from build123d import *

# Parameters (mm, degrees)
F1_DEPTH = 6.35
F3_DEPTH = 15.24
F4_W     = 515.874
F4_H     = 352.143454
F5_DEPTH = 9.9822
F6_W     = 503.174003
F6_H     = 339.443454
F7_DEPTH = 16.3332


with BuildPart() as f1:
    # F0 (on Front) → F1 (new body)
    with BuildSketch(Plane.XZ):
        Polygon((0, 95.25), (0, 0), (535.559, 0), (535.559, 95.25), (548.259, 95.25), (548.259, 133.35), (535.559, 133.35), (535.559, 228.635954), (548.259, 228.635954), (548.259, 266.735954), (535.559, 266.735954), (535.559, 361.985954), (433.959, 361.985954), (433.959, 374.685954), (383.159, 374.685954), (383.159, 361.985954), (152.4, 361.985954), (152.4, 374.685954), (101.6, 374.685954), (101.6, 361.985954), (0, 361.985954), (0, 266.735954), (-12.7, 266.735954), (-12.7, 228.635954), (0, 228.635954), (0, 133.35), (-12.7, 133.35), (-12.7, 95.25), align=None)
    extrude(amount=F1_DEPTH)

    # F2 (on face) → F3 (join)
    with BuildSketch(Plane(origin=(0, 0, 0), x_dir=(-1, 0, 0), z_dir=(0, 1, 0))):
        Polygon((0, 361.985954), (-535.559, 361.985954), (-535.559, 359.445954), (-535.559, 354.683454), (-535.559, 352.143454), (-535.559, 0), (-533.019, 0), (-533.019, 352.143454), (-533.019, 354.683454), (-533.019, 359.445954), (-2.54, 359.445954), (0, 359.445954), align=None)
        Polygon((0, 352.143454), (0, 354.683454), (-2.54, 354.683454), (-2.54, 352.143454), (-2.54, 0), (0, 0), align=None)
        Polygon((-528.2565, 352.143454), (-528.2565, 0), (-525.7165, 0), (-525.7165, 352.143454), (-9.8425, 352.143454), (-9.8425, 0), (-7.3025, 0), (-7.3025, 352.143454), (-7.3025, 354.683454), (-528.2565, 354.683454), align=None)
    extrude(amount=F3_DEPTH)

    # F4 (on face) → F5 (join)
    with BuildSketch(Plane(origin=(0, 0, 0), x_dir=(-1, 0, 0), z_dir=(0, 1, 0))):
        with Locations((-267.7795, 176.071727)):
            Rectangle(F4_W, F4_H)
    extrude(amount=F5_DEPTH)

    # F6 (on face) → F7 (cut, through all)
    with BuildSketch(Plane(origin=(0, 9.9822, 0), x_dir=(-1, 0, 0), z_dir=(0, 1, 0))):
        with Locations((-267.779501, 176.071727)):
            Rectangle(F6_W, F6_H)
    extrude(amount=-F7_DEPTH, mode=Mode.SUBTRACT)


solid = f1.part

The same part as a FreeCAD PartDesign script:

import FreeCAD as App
import Part
import Sketcher
Q = App.Units.Quantity


def add_polygon(sketch, points):
    """Adds a closed chain of lines whose ends are joined by coincident constraints."""
    first, n = sketch.GeometryCount, len(points)
    for a, b in zip(points, points[1:] + points[:1]):
        sketch.addGeometry(Part.LineSegment(App.Vector(*a, 0), App.Vector(*b, 0)), False)
    for i in range(n):
        sketch.addConstraint(Sketcher.Constraint("Coincident", first + i, 2, first + (i + 1) % n, 1))

doc = App.newDocument("Part")
params = doc.addObject("Spreadsheet::Sheet", "Params")
for row, (alias, value) in enumerate([
    ("sketch1_width", "4 in"),
    ("sketch1_width2", "2 in"),
    ("sketch1_width3", "0.5 in"),
    ("sketch1_height", "1.5 in"),
    ("sketch1_height2", "3.75 in"),
    ("pad1_length", "0.25 in"),
    ("sketch2_width", "0.1 in"),
    ("sketch2_width2", "20.31 in"),
    ("sketch2_width3", "21.085 in"),
    ("pad2_length", "0.6 in"),
    ("sketch3_width", "20.31 in"),
    ("pad3_length", "0.393 in"),
    ("sketch4_width", "19.8100001 in"),
], start=1):
    params.set(f"A{row}", alias)
    params.set(f"B{row}", "=" + value)
    params.setAlias(f"B{row}", alias)

body = doc.addObject("PartDesign::Body", "Body")

sketch1 = body.newObject("Sketcher::SketchObject", "Sketch")
sketch1.AttachmentSupport = (doc.getObject("XZ_Plane"), [""])
sketch1.MapMode = "FlatFace"
add_polygon(sketch1, [(0, 95.25), (0, 0), (535.559, 0), (535.559, 95.25), (548.259, 95.25), (548.259, 133.35), (535.559, 133.35), (535.559, 228.635954), (548.259, 228.635954), (548.259, 266.735954), (535.559, 266.735954), (535.559, 361.985954), (433.959, 361.985954), (433.959, 374.685954), (383.159, 374.685954), (383.159, 361.985954), (152.4, 361.985954), (152.4, 374.685954), (101.6, 374.685954), (101.6, 361.985954), (0, 361.985954), (0, 266.735954), (-12.7, 266.735954), (-12.7, 228.635954), (0, 228.635954), (0, 133.35), (-12.7, 133.35), (-12.7, 95.25)])
sketch1.addConstraint([
    Sketcher.Constraint("Vertical", 0),
    Sketcher.Constraint("Horizontal", 1),
    Sketcher.Constraint("Vertical", 2),
    Sketcher.Constraint("Horizontal", 3),
    Sketcher.Constraint("Vertical", 4),
    Sketcher.Constraint("Horizontal", 5),
    Sketcher.Constraint("Vertical", 6),
    Sketcher.Constraint("Horizontal", 7),
    Sketcher.Constraint("Vertical", 8),
    Sketcher.Constraint("Horizontal", 9),
    Sketcher.Constraint("Vertical", 10),
    Sketcher.Constraint("Horizontal", 11),
    Sketcher.Constraint("Vertical", 12),
    Sketcher.Constraint("Horizontal", 13),
    Sketcher.Constraint("Vertical", 14),
    Sketcher.Constraint("Horizontal", 15),
    Sketcher.Constraint("Vertical", 16),
    Sketcher.Constraint("Horizontal", 17),
    Sketcher.Constraint("Vertical", 18),
    Sketcher.Constraint("Horizontal", 19),
    Sketcher.Constraint("Vertical", 20),
    Sketcher.Constraint("Horizontal", 21),
    Sketcher.Constraint("Vertical", 22),
    Sketcher.Constraint("Horizontal", 23),
    Sketcher.Constraint("Vertical", 24),
    Sketcher.Constraint("Horizontal", 25),
    Sketcher.Constraint("Vertical", 26),
    Sketcher.Constraint("Horizontal", 27),
    Sketcher.Constraint("Coincident", 0, 2, -1, 1),
    Sketcher.Constraint("PointOnObject", 19, 2, -2),
    Sketcher.Constraint("PointOnObject", 23, 2, -2),
    Sketcher.Constraint("Horizontal", 11, 2, 14, 2),
    Sketcher.Constraint("Horizontal", 13, 2, 16, 2),
    Sketcher.Constraint("Horizontal", 15, 2, 18, 2),
    Sketcher.Constraint("Horizontal", 9, 2, 20, 2),
    Sketcher.Constraint("Horizontal", 7, 2, 22, 2),
    Sketcher.Constraint("Horizontal", 5, 2, 24, 2),
    Sketcher.Constraint("Horizontal", 3, 2, 26, 2),
    Sketcher.Constraint("Vertical", 2, 2, 5, 2),
    Sketcher.Constraint("Vertical", 4, 2, 7, 2),
    Sketcher.Constraint("Vertical", 6, 2, 9, 2),
    Sketcher.Constraint("Vertical", 22, 2, 25, 2),
    Sketcher.Constraint("Equal", 13, 17),
    Sketcher.Constraint("Equal", 11, 19),
    Sketcher.Constraint("Equal", 9, 21),
    Sketcher.Constraint("Equal", 4, 8),
    Sketcher.Constraint("Equal", 2, 10),
    Sketcher.Constraint("Equal", 27, 12),
    Sketcher.Constraint("DistanceX", 11, 2, 11, 1, Q("4 in")),
    Sketcher.Constraint("DistanceX", 13, 2, 13, 1, Q("2 in")),
    Sketcher.Constraint("DistanceX", 3, 1, 3, 2, Q("0.5 in")),
    Sketcher.Constraint("DistanceY", 4, 1, 4, 2, Q("1.5 in")),
    Sketcher.Constraint("DistanceY", 0, 2, 0, 1, Q("3.75 in")),
    Sketcher.Constraint("DistanceX", 1, 1, 1, 2, Q("21.085 in")),
    Sketcher.Constraint("DistanceY", 6, 1, 6, 2, Q("95.285954 mm")),
])
sketch1.setExpression("Constraints[76]", "Params.sketch1_width")
sketch1.setExpression("Constraints[77]", "Params.sketch1_width2")
sketch1.setExpression("Constraints[78]", "Params.sketch1_width3")
sketch1.setExpression("Constraints[79]", "Params.sketch1_height")
sketch1.setExpression("Constraints[80]", "Params.sketch1_height2")
pad1 = body.newObject("PartDesign::Pad", "Pad")
pad1.Profile = sketch1
pad1.setExpression("Length", "Params.pad1_length")

sketch2 = body.newObject("Sketcher::SketchObject", "Sketch001")
sketch2.AttachmentSupport = (doc.getObject("XZ_Plane"), [""])
sketch2.MapMode = "FlatFace"
add_polygon(sketch2, [(0, 361.985954), (535.559, 361.985954), (535.559, 0), (533.019, 0), (533.019, 359.445954), (0, 359.445954)])
add_polygon(sketch2, [(0, 354.683454), (2.54, 354.683454), (2.54, 0), (0, 0)])
add_polygon(sketch2, [(528.2565, 0), (525.7165, 0), (525.7165, 352.143454), (9.8425, 352.143454), (9.8425, 0), (7.3025, 0), (7.3025, 354.683454), (528.2565, 354.683454)])
sketch2.addConstraint([
    Sketcher.Constraint("Horizontal", 0),
    Sketcher.Constraint("Vertical", 1),
    Sketcher.Constraint("Horizontal", 2),
    Sketcher.Constraint("Vertical", 3),
    Sketcher.Constraint("Horizontal", 4),
    Sketcher.Constraint("Vertical", 5),
    Sketcher.Constraint("Horizontal", 6),
    Sketcher.Constraint("Vertical", 7),
    Sketcher.Constraint("Horizontal", 8),
    Sketcher.Constraint("Vertical", 9),
    Sketcher.Constraint("Horizontal", 10),
    Sketcher.Constraint("Vertical", 11),
    Sketcher.Constraint("Horizontal", 12),
    Sketcher.Constraint("Vertical", 13),
    Sketcher.Constraint("Horizontal", 14),
    Sketcher.Constraint("Vertical", 15),
    Sketcher.Constraint("Horizontal", 16),
    Sketcher.Constraint("Vertical", 17),
    Sketcher.Constraint("Coincident", 8, 2, -1, 1),
    Sketcher.Constraint("PointOnObject", 1, 2, -1),
    Sketcher.Constraint("PointOnObject", 4, 2, -2),
    Sketcher.Constraint("PointOnObject", 10, 2, -1),
    Sketcher.Constraint("PointOnObject", 13, 2, -1),
    Sketcher.Constraint("Horizontal", 9, 2, 15, 2),
    Sketcher.Constraint("Equal", 2, 6),
    Sketcher.Constraint("Equal", 8, 10),
    Sketcher.Constraint("Equal", 10, 14),
    Sketcher.Constraint("Equal", 14, 5),
    Sketcher.Constraint("DistanceX", 2, 2, 2, 1, Q("0.1 in")),
    Sketcher.Constraint("DistanceX", 12, 2, 12, 1, Q("20.31 in")),
    Sketcher.Constraint("DistanceY", 12, 2, 6, 2, Q("0.1 in")),
    Sketcher.Constraint("DistanceX", 0, 1, 0, 2, Q("21.085 in")),
    Sketcher.Constraint("DistanceY", 6, 2, 4, 2, Q("0.1875 in")),
    Sketcher.Constraint("DistanceX", 7, 2, 14, 2, Q("0.1875 in")),
    Sketcher.Constraint("DistanceY", 1, 2, 1, 1, Q("361.985954 mm")),
])
sketch2.setExpression("Constraints[46]", "Params.sketch2_width")
sketch2.setExpression("Constraints[47]", "Params.sketch2_width2")
sketch2.setExpression("Constraints[49]", "Params.sketch2_width3")
pad2 = body.newObject("PartDesign::Pad", "Pad001")
pad2.Profile = sketch2
pad2.setExpression("Length", "Params.pad2_length")
pad2.Reversed = True

sketch3 = body.newObject("Sketcher::SketchObject", "Sketch002")
sketch3.AttachmentSupport = (doc.getObject("XZ_Plane"), [""])
sketch3.MapMode = "FlatFace"
add_polygon(sketch3, [(525.7165, 352.143454), (525.7165, 0), (9.8425, 0), (9.8425, 352.143454)])
sketch3.addConstraint([
    Sketcher.Constraint("Vertical", 0),
    Sketcher.Constraint("Horizontal", 1),
    Sketcher.Constraint("Vertical", 2),
    Sketcher.Constraint("Horizontal", 3),
    Sketcher.Constraint("PointOnObject", 0, 2, -1),
    Sketcher.Constraint("DistanceX", 1, 2, 1, 1, Q("20.31 in")),
    Sketcher.Constraint("DistanceX", -1, 1, 0, 2, Q("20.6975 in")),
    Sketcher.Constraint("DistanceY", 0, 2, 0, 1, Q("352.143454 mm")),
])
sketch3.setExpression("Constraints[9]", "Params.sketch3_width")
pad3 = body.newObject("PartDesign::Pad", "Pad002")
pad3.Profile = sketch3
pad3.setExpression("Length", "Params.pad3_length")
pad3.Reversed = True

sketch4 = body.newObject("Sketcher::SketchObject", "Sketch003")
sketch4.AttachmentSupport = (doc.getObject("XZ_Plane"), [""])
sketch4.MapMode = "FlatFace"
sketch4.AttachmentOffset = App.Placement(App.Vector(0, 0, -0.393 * 25.4), App.Rotation())
add_polygon(sketch4, [(519.366503, 345.793454), (519.366503, 6.35), (16.1925, 6.35), (16.1925, 345.793454)])
sketch4.addConstraint([
    Sketcher.Constraint("Vertical", 0),
    Sketcher.Constraint("Horizontal", 1),
    Sketcher.Constraint("Vertical", 2),
    Sketcher.Constraint("Horizontal", 3),
    Sketcher.Constraint("DistanceX", 1, 2, 1, 1, Q("19.8100001 in")),
    Sketcher.Constraint("DistanceY", -1, 1, 0, 2, Q("0.25 in")),
    Sketcher.Constraint("DistanceX", -1, 1, 0, 2, Q("20.4475001 in")),
    Sketcher.Constraint("DistanceY", 0, 2, 0, 1, Q("339.443454 mm")),
])
sketch4.setExpression("Constraints[8]", "Params.sketch4_width")
pocket1 = body.newObject("PartDesign::Pocket", "Pocket")
pocket1.Profile = sketch4
pocket1.Type = "ThroughAll"
pocket1.Reversed = True

doc.recompute()
